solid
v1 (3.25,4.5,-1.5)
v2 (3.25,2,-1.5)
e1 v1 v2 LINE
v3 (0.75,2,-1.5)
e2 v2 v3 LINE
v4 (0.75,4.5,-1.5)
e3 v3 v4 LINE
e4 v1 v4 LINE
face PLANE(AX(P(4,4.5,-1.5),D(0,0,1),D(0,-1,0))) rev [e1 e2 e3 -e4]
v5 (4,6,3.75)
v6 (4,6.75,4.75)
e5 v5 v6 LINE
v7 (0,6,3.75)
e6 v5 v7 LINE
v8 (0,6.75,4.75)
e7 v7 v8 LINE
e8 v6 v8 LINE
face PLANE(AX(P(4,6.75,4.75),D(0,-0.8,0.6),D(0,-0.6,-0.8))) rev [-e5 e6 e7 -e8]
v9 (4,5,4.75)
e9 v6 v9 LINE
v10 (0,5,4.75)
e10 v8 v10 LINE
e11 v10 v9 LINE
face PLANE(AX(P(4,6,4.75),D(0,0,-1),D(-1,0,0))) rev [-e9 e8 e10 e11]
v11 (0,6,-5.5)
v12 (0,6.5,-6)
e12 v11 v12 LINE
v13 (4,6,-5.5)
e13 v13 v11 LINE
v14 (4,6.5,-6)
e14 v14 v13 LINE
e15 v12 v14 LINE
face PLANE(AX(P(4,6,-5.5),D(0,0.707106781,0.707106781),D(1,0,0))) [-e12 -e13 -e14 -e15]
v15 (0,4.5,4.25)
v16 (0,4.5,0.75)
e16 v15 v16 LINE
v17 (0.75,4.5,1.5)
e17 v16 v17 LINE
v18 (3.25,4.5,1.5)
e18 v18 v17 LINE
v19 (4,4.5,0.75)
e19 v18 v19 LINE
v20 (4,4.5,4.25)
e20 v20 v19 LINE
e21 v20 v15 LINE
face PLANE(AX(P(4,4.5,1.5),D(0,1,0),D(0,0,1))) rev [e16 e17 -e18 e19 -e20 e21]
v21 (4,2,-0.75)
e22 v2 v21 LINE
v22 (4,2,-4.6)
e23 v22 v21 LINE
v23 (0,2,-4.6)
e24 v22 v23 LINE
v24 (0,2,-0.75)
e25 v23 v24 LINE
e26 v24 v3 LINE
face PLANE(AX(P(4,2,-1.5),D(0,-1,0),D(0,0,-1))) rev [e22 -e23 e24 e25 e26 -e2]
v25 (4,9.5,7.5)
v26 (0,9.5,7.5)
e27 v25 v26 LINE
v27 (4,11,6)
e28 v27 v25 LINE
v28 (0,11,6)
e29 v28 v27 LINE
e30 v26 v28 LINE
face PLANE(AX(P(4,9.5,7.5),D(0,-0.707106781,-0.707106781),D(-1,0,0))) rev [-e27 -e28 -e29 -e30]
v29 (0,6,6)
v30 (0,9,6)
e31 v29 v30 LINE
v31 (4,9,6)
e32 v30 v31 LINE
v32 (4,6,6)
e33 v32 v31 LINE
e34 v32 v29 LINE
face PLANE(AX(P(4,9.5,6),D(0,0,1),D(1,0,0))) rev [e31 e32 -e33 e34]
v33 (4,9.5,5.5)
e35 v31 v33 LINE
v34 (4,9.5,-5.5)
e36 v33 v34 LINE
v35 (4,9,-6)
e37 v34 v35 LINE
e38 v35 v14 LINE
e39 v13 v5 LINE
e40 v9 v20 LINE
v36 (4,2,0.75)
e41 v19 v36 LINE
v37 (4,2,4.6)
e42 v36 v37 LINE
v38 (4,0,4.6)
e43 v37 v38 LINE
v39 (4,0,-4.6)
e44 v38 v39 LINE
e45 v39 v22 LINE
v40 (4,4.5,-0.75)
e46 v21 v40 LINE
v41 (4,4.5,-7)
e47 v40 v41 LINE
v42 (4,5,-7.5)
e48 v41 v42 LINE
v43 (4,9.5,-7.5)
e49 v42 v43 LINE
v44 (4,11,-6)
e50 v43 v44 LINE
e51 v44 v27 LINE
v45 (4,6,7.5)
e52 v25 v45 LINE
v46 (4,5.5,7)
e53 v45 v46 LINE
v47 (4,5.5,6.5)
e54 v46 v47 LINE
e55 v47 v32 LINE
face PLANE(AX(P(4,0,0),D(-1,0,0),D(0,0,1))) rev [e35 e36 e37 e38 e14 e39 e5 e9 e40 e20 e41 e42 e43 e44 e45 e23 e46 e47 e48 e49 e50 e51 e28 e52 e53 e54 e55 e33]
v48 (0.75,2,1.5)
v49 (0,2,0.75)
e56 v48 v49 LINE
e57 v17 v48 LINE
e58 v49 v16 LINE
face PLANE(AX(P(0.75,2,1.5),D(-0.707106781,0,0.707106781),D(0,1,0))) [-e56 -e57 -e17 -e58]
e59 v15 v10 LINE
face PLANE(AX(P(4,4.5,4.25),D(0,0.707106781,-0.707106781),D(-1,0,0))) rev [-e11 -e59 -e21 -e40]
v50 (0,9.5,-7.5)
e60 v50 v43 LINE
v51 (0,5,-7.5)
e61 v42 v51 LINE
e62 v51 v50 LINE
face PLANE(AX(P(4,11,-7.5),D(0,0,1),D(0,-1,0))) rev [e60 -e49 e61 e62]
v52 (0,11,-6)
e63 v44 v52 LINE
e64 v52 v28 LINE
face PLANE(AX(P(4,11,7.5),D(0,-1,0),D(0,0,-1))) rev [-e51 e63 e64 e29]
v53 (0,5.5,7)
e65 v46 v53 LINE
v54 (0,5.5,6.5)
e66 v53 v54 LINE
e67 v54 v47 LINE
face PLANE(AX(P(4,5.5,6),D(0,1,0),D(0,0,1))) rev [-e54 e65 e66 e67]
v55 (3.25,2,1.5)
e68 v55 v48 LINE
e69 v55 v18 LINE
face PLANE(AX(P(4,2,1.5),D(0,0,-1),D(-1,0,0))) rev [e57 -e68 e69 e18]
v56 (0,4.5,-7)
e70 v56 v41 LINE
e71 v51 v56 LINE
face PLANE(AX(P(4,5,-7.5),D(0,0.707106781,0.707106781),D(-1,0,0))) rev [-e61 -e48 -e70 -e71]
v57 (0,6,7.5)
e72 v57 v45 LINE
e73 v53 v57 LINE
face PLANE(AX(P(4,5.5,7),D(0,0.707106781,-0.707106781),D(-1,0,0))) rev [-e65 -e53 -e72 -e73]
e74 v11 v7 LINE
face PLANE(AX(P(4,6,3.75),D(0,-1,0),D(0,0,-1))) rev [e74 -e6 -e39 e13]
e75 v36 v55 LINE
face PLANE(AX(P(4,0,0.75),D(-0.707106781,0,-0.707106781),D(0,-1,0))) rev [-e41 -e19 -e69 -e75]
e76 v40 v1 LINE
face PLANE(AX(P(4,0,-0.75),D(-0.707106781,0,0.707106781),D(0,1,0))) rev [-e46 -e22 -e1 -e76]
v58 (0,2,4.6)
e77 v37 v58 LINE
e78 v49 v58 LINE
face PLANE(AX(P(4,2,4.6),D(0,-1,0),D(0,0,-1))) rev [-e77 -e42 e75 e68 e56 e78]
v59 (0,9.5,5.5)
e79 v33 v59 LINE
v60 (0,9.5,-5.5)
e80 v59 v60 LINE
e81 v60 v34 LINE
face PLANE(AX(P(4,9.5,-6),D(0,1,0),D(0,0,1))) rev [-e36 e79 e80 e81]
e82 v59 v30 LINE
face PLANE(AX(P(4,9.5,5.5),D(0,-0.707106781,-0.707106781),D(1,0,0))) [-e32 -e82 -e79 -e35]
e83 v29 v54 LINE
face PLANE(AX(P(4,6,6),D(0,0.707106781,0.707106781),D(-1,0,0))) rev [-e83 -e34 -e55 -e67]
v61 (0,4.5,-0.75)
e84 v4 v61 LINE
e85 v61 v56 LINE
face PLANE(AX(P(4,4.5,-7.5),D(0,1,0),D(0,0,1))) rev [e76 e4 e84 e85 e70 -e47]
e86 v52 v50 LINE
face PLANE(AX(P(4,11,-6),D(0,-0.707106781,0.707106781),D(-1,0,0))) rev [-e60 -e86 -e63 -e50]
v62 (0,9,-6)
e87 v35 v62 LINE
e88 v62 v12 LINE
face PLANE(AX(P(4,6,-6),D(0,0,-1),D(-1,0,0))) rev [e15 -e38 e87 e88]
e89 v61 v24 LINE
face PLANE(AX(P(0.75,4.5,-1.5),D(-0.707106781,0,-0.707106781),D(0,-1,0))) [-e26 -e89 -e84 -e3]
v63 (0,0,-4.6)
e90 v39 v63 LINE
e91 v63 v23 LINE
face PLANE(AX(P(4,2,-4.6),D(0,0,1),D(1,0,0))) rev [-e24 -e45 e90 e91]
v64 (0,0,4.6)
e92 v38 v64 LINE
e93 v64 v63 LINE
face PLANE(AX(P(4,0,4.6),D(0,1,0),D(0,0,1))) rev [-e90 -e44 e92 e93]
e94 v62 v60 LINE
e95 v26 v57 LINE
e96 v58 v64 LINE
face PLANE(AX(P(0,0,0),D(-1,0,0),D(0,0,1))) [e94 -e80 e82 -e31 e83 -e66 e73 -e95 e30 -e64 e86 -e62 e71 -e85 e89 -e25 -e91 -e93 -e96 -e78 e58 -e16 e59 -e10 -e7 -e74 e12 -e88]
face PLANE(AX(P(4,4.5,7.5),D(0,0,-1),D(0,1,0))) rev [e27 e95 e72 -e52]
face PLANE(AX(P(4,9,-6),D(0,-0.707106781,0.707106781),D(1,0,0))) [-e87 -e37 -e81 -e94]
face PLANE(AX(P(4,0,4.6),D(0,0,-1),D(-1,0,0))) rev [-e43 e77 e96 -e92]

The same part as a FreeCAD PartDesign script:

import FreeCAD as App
import Part
import Sketcher
Q = App.Units.Quantity


def edges_at(feature, points):
    """Names of the edges that pass closest to the given points."""
    edges = feature.Shape.Edges
    near = lambda p: min(range(len(edges)), key=lambda i: edges[i].distToShape(Part.Vertex(*p))[0])
    return sorted({f"Edge{near(p) + 1}" for p in points})

doc = App.newDocument("Part")
params = doc.addObject("Spreadsheet::Sheet", "Params")
for row, (alias, value) in enumerate([
    ("sketch1_width", "2 mm"),
    ("sketch1_width2", "5 mm"),
    ("sketch1_height", "6 mm"),
    ("sketch1_height2", "15 mm"),
    ("sketch1_height3", "12 mm"),
    ("pad1_length", "4 mm"),
    ("chamfer_size", "0.75 mm"),
    ("sketch2_width", "1 mm"),
    ("sketch2_height", "1.5 mm"),
    ("chamfer2_size", "1.5 mm"),
    ("chamfer3_size", "0.5 mm"),
], start=1):
    params.set(f"A{row}", alias)
    params.set(f"B{row}", "=" + value)
    params.setAlias(f"B{row}", alias)

body = doc.addObject("PartDesign::Body", "Body")

# Sketch on YZ plane
sketch1 = body.newObject("Sketcher::SketchObject", "Sketch")
sketch1.AttachmentSupport = (doc.getObject("YZ_Plane"), [""])
sketch1.MapMode = "FlatFace"
sketch1.addGeometry(Part.LineSegment(App.Vector(0, 4.6, 0), App.Vector(0, -4.6, 0)), False)
sketch1.addGeometry(Part.LineSegment(App.Vector(0, -4.6, 0), App.Vector(2, -4.6, 0)), False)
sketch1.addGeometry(Part.LineSegment(App.Vector(2, -4.6, 0), App.Vector(2, -1.5, 0)), False)
sketch1.addGeometry(Part.LineSegment(App.Vector(2, -1.5, 0), App.Vector(4.5, -1.5, 0)), False)
sketch1.addGeometry(Part.LineSegment(App.Vector(4.5, -1.5, 0), App.Vector(4.5, -7.5, 0)), False)
sketch1.addGeometry(Part.LineSegment(App.Vector(4.5, -7.5, 0), App.Vector(11, -7.5, 0)), False)
sketch1.addGeometry(Part.LineSegment(App.Vector(11, -7.5, 0), App.Vector(11, 7.5, 0)), False)
sketch1.addGeometry(Part.LineSegment(App.Vector(11, 7.5, 0), App.Vector(4.5, 7.5, 0)), False)
sketch1.addGeometry(Part.LineSegment(App.Vector(4.5, 7.5, 0), App.Vector(4.5, 6, 0)), False)
sketch1.addGeometry(Part.LineSegment(App.Vector(4.5, 6, 0), App.Vector(9.5, 6, 0)), False)
sketch1.addGeometry(Part.LineSegment(App.Vector(9.5, 6, 0), App.Vector(9.5, -6, 0)), False)
sketch1.addGeometry(Part.LineSegment(App.Vector(9.5, -6, 0), App.Vector(6, -6, 0)), False)
sketch1.addGeometry(Part.LineSegment(App.Vector(6, -6, 0), App.Vector(6, 3.8, 0)), False)
sketch1.addGeometry(Part.LineSegment(App.Vector(6, 3.8, 0), App.Vector(6.8, 4.8, 0)), False)
sketch1.addGeometry(Part.LineSegment(App.Vector(6.8, 4.8, 0), App.Vector(4.5, 4.8, 0)), False)
sketch1.addGeometry(Part.LineSegment(App.Vector(4.5, 4.8, 0), App.Vector(4.5, 1.5, 0)), False)
sketch1.addGeometry(Part.LineSegment(App.Vector(4.5, 1.5, 0), App.Vector(2, 1.5, 0)), False)
sketch1.addGeometry(Part.LineSegment(App.Vector(2, 1.5, 0), App.Vector(2, 4.6, 0)), False)
sketch1.addGeometry(Part.LineSegment(App.Vector(2, 4.6, 0), App.Vector(0, 4.6, 0)), False)
sketch1.addConstraint(Sketcher.Constraint("Coincident", 0, 2, 1, 1))
sketch1.addConstraint(Sketcher.Constraint("Coincident", 1, 2, 2, 1))
sketch1.addConstraint(Sketcher.Constraint("Coincident", 2, 2, 3, 1))
sketch1.addConstraint(Sketcher.Constraint("Coincident", 3, 2, 4, 1))
sketch1.addConstraint(Sketcher.Constraint("Coincident", 4, 2, 5, 1))
sketch1.addConstraint(Sketcher.Constraint("Coincident", 5, 2, 6, 1))
sketch1.addConstraint(Sketcher.Constraint("Coincident", 6, 2, 7, 1))
sketch1.addConstraint(Sketcher.Constraint("Coincident", 7, 2, 8, 1))
sketch1.addConstraint(Sketcher.Constraint("Coincident", 8, 2, 9, 1))
sketch1.addConstraint(Sketcher.Constraint("Coincident", 9, 2, 10, 1))
sketch1.addConstraint(Sketcher.Constraint("Coincident", 10, 2, 11, 1))
sketch1.addConstraint(Sketcher.Constraint("Coincident", 11, 2, 12, 1))
sketch1.addConstraint(Sketcher.Constraint("Coincident", 12, 2, 13, 1))
sketch1.addConstraint(Sketcher.Constraint("Coincident", 13, 2, 14, 1))
sketch1.addConstraint(Sketcher.Constraint("Coincident", 14, 2, 15, 1))
sketch1.addConstraint(Sketcher.Constraint("Coincident", 15, 2, 16, 1))
sketch1.addConstraint(Sketcher.Constraint("Coincident", 16, 2, 17, 1))
sketch1.addConstraint(Sketcher.Constraint("Coincident", 17, 2, 18, 1))
sketch1.addConstraint(Sketcher.Constraint("Coincident", 18, 2, 0, 1))
sketch1.addConstraint(Sketcher.Constraint("Vertical", 0))
sketch1.addConstraint(Sketcher.Constraint("Horizontal", 1))
sketch1.addConstraint(Sketcher.Constraint("Vertical", 2))
sketch1.addConstraint(Sketcher.Constraint("Horizontal", 3))
sketch1.addConstraint(Sketcher.Constraint("Vertical", 4))
sketch1.addConstraint(Sketcher.Constraint("Horizontal", 5))
sketch1.addConstraint(Sketcher.Constraint("Vertical", 6))
sketch1.addConstraint(Sketcher.Constraint("Horizontal", 7))
sketch1.addConstraint(Sketcher.Constraint("Vertical", 8))
sketch1.addConstraint(Sketcher.Constraint("Horizontal", 9))
sketch1.addConstraint(Sketcher.Constraint("Vertical", 10))
sketch1.addConstraint(Sketcher.Constraint("Horizontal", 11))
sketch1.addConstraint(Sketcher.Constraint("Vertical", 12))
sketch1.addConstraint(Sketcher.Constraint("Horizontal", 14))
sketch1.addConstraint(Sketcher.Constraint("Vertical", 15))
sketch1.addConstraint(Sketcher.Constraint("Horizontal", 16))
sketch1.addConstraint(Sketcher.Constraint("Vertical", 17))
sketch1.addConstraint(Sketcher.Constraint("Horizontal", 18))
sketch1.addConstraint(Sketcher.Constraint("Symmetric", 0, 2, 18, 2, -1, 1))
sketch1.addConstraint(Sketcher.Constraint("Symmetric", 4, 2, 7, 2, -1))
sketch1.addConstraint(Sketcher.Constraint("Symmetric", 3, 2, 15, 2, -1))
sketch1.addConstraint(Sketcher.Constraint("Vertical", 2, 2, 16, 2))
sketch1.addConstraint(Sketcher.Constraint("DistanceX", 1, 1, 1, 2, Q("2 mm")))
sketch1.addConstraint(Sketcher.Constraint("DistanceX", 9, 1, 9, 2, Q("5 mm")))
sketch1.addConstraint(Sketcher.Constraint("DistanceY", 4, 2, 4, 1, Q("6 mm")))
sketch1.addConstraint(Sketcher.Constraint("DistanceY", 6, 1, 6, 2, Q("15 mm")))
sketch1.addConstraint(Sketcher.Constraint("DistanceY", 10, 2, 10, 1, Q("12 mm")))
sketch1.addConstraint(Sketcher.Constraint("DistanceX", 3, 1, 3, 2, Q("2.5 mm")))
sketch1.addConstraint(Sketcher.Constraint("DistanceX", 5, 1, 5, 2, Q("6.5 mm")))
sketch1.addConstraint(Sketcher.Constraint("DistanceX", 11, 2, 11, 1, Q("3.5 mm")))
sketch1.addConstraint(Sketcher.Constraint("DistanceY", 0, 2, 0, 1, Q("9.2 mm")))
sketch1.addConstraint(Sketcher.Constraint("DistanceY", 8, 2, 8, 1, Q("1.5 mm")))
sketch1.addConstraint(Sketcher.Constraint("DistanceY", 12, 2, 13, 2, Q("1 mm")))
sketch1.addConstraint(Sketcher.Constraint("DistanceX", 14, 2, 14, 1, Q("2.25 mm")))
sketch1.addConstraint(Sketcher.Constraint("DistanceY", 12, 1, 12, 2, Q("9.75 mm")))
sketch1.setExpression("Constraints[41]", "Params.sketch1_width")
sketch1.setExpression("Constraints[42]", "Params.sketch1_width2")
sketch1.setExpression("Constraints[43]", "Params.sketch1_height")
sketch1.setExpression("Constraints[44]", "Params.sketch1_height2")
sketch1.setExpression("Constraints[45]", "Params.sketch1_height3")
pad1 = body.newObject("PartDesign::Pad", "Pad")
pad1.Profile = sketch1
pad1.setExpression("Length", "Params.pad1_length")
doc.recompute()

chamfer = body.newObject("PartDesign::Chamfer", "Chamfer")
chamfer.Base = (pad1, edges_at(pad1, [
    (0, 3.25, 1.5),
    (0, 3.25, -1.5),
    (4, 3.25, 1.5),
    (4, 3.25, -1.5),
]))
chamfer.setExpression("Size", "Params.chamfer_size")

# Sketch on YZ plane
sketch2 = body.newObject("Sketcher::SketchObject", "Sketch001")
sketch2.AttachmentSupport = (doc.getObject("YZ_Plane"), [""])
sketch2.MapMode = "FlatFace"
sketch2.addGeometry(Part.LineSegment(App.Vector(5.5, 6, 0), App.Vector(4.5, 6, 0)), False)
sketch2.addGeometry(Part.LineSegment(App.Vector(4.5, 6, 0), App.Vector(4.5, 7.5, 0)), False)
sketch2.addGeometry(Part.LineSegment(App.Vector(4.5, 7.5, 0), App.Vector(5.5, 7.5, 0)), False)
sketch2.addGeometry(Part.LineSegment(App.Vector(5.5, 7.5, 0), App.Vector(5.5, 6, 0)), False)
sketch2.addConstraint(Sketcher.Constraint("Coincident", 0, 2, 1, 1))
sketch2.addConstraint(Sketcher.Constraint("Coincident", 1, 2, 2, 1))
sketch2.addConstraint(Sketcher.Constraint("Coincident", 2, 2, 3, 1))
sketch2.addConstraint(Sketcher.Constraint("Coincident", 3, 2, 0, 1))
sketch2.addConstraint(Sketcher.Constraint("Horizontal", 0))
sketch2.addConstraint(Sketcher.Constraint("Vertical", 1))
sketch2.addConstraint(Sketcher.Constraint("Horizontal", 2))
sketch2.addConstraint(Sketcher.Constraint("Vertical", 3))
sketch2.addConstraint(Sketcher.Constraint("DistanceX", 0, 2, 0, 1, Q("1 mm")))
sketch2.addConstraint(Sketcher.Constraint("DistanceY", 1, 1, 1, 2, Q("1.5 mm")))
sketch2.addConstraint(Sketcher.Constraint("DistanceY", -1, 1, 0, 2, Q("6 mm")))
sketch2.addConstraint(Sketcher.Constraint("DistanceX", -1, 1, 0, 2, Q("4.5 mm")))
sketch2.setExpression("Constraints[8]", "Params.sketch2_width")
sketch2.setExpression("Constraints[9]", "Params.sketch2_height")
pocket1 = body.newObject("PartDesign::Pocket", "Pocket")
pocket1.Profile = sketch2
pocket1.Type = "ThroughAll"
pocket1.Reversed = True
doc.recompute()

chamfer2 = body.newObject("PartDesign::Chamfer", "Chamfer001")
chamfer2.Base = (pocket1, edges_at(pocket1, [(2, 11, 7.5), (2, 11, -7.5)]))
chamfer2.setExpression("Size", "Params.chamfer2_size")
doc.recompute()

chamfer3 = body.newObject("PartDesign::Chamfer", "Chamfer002")
chamfer3.Base = (chamfer2, edges_at(chamfer2, [
    (2, 5.5, 6),
    (2, 5.5, 7.5),
    (2, 4.5, 4.75),
    (2, 6, -6),
    (2, 9.5, -6),
    (2, 9.5, 6),
    (2, 4.5, -7.5),
]))
chamfer3.setExpression("Size", "Params.chamfer3_size")

doc.recompute()
